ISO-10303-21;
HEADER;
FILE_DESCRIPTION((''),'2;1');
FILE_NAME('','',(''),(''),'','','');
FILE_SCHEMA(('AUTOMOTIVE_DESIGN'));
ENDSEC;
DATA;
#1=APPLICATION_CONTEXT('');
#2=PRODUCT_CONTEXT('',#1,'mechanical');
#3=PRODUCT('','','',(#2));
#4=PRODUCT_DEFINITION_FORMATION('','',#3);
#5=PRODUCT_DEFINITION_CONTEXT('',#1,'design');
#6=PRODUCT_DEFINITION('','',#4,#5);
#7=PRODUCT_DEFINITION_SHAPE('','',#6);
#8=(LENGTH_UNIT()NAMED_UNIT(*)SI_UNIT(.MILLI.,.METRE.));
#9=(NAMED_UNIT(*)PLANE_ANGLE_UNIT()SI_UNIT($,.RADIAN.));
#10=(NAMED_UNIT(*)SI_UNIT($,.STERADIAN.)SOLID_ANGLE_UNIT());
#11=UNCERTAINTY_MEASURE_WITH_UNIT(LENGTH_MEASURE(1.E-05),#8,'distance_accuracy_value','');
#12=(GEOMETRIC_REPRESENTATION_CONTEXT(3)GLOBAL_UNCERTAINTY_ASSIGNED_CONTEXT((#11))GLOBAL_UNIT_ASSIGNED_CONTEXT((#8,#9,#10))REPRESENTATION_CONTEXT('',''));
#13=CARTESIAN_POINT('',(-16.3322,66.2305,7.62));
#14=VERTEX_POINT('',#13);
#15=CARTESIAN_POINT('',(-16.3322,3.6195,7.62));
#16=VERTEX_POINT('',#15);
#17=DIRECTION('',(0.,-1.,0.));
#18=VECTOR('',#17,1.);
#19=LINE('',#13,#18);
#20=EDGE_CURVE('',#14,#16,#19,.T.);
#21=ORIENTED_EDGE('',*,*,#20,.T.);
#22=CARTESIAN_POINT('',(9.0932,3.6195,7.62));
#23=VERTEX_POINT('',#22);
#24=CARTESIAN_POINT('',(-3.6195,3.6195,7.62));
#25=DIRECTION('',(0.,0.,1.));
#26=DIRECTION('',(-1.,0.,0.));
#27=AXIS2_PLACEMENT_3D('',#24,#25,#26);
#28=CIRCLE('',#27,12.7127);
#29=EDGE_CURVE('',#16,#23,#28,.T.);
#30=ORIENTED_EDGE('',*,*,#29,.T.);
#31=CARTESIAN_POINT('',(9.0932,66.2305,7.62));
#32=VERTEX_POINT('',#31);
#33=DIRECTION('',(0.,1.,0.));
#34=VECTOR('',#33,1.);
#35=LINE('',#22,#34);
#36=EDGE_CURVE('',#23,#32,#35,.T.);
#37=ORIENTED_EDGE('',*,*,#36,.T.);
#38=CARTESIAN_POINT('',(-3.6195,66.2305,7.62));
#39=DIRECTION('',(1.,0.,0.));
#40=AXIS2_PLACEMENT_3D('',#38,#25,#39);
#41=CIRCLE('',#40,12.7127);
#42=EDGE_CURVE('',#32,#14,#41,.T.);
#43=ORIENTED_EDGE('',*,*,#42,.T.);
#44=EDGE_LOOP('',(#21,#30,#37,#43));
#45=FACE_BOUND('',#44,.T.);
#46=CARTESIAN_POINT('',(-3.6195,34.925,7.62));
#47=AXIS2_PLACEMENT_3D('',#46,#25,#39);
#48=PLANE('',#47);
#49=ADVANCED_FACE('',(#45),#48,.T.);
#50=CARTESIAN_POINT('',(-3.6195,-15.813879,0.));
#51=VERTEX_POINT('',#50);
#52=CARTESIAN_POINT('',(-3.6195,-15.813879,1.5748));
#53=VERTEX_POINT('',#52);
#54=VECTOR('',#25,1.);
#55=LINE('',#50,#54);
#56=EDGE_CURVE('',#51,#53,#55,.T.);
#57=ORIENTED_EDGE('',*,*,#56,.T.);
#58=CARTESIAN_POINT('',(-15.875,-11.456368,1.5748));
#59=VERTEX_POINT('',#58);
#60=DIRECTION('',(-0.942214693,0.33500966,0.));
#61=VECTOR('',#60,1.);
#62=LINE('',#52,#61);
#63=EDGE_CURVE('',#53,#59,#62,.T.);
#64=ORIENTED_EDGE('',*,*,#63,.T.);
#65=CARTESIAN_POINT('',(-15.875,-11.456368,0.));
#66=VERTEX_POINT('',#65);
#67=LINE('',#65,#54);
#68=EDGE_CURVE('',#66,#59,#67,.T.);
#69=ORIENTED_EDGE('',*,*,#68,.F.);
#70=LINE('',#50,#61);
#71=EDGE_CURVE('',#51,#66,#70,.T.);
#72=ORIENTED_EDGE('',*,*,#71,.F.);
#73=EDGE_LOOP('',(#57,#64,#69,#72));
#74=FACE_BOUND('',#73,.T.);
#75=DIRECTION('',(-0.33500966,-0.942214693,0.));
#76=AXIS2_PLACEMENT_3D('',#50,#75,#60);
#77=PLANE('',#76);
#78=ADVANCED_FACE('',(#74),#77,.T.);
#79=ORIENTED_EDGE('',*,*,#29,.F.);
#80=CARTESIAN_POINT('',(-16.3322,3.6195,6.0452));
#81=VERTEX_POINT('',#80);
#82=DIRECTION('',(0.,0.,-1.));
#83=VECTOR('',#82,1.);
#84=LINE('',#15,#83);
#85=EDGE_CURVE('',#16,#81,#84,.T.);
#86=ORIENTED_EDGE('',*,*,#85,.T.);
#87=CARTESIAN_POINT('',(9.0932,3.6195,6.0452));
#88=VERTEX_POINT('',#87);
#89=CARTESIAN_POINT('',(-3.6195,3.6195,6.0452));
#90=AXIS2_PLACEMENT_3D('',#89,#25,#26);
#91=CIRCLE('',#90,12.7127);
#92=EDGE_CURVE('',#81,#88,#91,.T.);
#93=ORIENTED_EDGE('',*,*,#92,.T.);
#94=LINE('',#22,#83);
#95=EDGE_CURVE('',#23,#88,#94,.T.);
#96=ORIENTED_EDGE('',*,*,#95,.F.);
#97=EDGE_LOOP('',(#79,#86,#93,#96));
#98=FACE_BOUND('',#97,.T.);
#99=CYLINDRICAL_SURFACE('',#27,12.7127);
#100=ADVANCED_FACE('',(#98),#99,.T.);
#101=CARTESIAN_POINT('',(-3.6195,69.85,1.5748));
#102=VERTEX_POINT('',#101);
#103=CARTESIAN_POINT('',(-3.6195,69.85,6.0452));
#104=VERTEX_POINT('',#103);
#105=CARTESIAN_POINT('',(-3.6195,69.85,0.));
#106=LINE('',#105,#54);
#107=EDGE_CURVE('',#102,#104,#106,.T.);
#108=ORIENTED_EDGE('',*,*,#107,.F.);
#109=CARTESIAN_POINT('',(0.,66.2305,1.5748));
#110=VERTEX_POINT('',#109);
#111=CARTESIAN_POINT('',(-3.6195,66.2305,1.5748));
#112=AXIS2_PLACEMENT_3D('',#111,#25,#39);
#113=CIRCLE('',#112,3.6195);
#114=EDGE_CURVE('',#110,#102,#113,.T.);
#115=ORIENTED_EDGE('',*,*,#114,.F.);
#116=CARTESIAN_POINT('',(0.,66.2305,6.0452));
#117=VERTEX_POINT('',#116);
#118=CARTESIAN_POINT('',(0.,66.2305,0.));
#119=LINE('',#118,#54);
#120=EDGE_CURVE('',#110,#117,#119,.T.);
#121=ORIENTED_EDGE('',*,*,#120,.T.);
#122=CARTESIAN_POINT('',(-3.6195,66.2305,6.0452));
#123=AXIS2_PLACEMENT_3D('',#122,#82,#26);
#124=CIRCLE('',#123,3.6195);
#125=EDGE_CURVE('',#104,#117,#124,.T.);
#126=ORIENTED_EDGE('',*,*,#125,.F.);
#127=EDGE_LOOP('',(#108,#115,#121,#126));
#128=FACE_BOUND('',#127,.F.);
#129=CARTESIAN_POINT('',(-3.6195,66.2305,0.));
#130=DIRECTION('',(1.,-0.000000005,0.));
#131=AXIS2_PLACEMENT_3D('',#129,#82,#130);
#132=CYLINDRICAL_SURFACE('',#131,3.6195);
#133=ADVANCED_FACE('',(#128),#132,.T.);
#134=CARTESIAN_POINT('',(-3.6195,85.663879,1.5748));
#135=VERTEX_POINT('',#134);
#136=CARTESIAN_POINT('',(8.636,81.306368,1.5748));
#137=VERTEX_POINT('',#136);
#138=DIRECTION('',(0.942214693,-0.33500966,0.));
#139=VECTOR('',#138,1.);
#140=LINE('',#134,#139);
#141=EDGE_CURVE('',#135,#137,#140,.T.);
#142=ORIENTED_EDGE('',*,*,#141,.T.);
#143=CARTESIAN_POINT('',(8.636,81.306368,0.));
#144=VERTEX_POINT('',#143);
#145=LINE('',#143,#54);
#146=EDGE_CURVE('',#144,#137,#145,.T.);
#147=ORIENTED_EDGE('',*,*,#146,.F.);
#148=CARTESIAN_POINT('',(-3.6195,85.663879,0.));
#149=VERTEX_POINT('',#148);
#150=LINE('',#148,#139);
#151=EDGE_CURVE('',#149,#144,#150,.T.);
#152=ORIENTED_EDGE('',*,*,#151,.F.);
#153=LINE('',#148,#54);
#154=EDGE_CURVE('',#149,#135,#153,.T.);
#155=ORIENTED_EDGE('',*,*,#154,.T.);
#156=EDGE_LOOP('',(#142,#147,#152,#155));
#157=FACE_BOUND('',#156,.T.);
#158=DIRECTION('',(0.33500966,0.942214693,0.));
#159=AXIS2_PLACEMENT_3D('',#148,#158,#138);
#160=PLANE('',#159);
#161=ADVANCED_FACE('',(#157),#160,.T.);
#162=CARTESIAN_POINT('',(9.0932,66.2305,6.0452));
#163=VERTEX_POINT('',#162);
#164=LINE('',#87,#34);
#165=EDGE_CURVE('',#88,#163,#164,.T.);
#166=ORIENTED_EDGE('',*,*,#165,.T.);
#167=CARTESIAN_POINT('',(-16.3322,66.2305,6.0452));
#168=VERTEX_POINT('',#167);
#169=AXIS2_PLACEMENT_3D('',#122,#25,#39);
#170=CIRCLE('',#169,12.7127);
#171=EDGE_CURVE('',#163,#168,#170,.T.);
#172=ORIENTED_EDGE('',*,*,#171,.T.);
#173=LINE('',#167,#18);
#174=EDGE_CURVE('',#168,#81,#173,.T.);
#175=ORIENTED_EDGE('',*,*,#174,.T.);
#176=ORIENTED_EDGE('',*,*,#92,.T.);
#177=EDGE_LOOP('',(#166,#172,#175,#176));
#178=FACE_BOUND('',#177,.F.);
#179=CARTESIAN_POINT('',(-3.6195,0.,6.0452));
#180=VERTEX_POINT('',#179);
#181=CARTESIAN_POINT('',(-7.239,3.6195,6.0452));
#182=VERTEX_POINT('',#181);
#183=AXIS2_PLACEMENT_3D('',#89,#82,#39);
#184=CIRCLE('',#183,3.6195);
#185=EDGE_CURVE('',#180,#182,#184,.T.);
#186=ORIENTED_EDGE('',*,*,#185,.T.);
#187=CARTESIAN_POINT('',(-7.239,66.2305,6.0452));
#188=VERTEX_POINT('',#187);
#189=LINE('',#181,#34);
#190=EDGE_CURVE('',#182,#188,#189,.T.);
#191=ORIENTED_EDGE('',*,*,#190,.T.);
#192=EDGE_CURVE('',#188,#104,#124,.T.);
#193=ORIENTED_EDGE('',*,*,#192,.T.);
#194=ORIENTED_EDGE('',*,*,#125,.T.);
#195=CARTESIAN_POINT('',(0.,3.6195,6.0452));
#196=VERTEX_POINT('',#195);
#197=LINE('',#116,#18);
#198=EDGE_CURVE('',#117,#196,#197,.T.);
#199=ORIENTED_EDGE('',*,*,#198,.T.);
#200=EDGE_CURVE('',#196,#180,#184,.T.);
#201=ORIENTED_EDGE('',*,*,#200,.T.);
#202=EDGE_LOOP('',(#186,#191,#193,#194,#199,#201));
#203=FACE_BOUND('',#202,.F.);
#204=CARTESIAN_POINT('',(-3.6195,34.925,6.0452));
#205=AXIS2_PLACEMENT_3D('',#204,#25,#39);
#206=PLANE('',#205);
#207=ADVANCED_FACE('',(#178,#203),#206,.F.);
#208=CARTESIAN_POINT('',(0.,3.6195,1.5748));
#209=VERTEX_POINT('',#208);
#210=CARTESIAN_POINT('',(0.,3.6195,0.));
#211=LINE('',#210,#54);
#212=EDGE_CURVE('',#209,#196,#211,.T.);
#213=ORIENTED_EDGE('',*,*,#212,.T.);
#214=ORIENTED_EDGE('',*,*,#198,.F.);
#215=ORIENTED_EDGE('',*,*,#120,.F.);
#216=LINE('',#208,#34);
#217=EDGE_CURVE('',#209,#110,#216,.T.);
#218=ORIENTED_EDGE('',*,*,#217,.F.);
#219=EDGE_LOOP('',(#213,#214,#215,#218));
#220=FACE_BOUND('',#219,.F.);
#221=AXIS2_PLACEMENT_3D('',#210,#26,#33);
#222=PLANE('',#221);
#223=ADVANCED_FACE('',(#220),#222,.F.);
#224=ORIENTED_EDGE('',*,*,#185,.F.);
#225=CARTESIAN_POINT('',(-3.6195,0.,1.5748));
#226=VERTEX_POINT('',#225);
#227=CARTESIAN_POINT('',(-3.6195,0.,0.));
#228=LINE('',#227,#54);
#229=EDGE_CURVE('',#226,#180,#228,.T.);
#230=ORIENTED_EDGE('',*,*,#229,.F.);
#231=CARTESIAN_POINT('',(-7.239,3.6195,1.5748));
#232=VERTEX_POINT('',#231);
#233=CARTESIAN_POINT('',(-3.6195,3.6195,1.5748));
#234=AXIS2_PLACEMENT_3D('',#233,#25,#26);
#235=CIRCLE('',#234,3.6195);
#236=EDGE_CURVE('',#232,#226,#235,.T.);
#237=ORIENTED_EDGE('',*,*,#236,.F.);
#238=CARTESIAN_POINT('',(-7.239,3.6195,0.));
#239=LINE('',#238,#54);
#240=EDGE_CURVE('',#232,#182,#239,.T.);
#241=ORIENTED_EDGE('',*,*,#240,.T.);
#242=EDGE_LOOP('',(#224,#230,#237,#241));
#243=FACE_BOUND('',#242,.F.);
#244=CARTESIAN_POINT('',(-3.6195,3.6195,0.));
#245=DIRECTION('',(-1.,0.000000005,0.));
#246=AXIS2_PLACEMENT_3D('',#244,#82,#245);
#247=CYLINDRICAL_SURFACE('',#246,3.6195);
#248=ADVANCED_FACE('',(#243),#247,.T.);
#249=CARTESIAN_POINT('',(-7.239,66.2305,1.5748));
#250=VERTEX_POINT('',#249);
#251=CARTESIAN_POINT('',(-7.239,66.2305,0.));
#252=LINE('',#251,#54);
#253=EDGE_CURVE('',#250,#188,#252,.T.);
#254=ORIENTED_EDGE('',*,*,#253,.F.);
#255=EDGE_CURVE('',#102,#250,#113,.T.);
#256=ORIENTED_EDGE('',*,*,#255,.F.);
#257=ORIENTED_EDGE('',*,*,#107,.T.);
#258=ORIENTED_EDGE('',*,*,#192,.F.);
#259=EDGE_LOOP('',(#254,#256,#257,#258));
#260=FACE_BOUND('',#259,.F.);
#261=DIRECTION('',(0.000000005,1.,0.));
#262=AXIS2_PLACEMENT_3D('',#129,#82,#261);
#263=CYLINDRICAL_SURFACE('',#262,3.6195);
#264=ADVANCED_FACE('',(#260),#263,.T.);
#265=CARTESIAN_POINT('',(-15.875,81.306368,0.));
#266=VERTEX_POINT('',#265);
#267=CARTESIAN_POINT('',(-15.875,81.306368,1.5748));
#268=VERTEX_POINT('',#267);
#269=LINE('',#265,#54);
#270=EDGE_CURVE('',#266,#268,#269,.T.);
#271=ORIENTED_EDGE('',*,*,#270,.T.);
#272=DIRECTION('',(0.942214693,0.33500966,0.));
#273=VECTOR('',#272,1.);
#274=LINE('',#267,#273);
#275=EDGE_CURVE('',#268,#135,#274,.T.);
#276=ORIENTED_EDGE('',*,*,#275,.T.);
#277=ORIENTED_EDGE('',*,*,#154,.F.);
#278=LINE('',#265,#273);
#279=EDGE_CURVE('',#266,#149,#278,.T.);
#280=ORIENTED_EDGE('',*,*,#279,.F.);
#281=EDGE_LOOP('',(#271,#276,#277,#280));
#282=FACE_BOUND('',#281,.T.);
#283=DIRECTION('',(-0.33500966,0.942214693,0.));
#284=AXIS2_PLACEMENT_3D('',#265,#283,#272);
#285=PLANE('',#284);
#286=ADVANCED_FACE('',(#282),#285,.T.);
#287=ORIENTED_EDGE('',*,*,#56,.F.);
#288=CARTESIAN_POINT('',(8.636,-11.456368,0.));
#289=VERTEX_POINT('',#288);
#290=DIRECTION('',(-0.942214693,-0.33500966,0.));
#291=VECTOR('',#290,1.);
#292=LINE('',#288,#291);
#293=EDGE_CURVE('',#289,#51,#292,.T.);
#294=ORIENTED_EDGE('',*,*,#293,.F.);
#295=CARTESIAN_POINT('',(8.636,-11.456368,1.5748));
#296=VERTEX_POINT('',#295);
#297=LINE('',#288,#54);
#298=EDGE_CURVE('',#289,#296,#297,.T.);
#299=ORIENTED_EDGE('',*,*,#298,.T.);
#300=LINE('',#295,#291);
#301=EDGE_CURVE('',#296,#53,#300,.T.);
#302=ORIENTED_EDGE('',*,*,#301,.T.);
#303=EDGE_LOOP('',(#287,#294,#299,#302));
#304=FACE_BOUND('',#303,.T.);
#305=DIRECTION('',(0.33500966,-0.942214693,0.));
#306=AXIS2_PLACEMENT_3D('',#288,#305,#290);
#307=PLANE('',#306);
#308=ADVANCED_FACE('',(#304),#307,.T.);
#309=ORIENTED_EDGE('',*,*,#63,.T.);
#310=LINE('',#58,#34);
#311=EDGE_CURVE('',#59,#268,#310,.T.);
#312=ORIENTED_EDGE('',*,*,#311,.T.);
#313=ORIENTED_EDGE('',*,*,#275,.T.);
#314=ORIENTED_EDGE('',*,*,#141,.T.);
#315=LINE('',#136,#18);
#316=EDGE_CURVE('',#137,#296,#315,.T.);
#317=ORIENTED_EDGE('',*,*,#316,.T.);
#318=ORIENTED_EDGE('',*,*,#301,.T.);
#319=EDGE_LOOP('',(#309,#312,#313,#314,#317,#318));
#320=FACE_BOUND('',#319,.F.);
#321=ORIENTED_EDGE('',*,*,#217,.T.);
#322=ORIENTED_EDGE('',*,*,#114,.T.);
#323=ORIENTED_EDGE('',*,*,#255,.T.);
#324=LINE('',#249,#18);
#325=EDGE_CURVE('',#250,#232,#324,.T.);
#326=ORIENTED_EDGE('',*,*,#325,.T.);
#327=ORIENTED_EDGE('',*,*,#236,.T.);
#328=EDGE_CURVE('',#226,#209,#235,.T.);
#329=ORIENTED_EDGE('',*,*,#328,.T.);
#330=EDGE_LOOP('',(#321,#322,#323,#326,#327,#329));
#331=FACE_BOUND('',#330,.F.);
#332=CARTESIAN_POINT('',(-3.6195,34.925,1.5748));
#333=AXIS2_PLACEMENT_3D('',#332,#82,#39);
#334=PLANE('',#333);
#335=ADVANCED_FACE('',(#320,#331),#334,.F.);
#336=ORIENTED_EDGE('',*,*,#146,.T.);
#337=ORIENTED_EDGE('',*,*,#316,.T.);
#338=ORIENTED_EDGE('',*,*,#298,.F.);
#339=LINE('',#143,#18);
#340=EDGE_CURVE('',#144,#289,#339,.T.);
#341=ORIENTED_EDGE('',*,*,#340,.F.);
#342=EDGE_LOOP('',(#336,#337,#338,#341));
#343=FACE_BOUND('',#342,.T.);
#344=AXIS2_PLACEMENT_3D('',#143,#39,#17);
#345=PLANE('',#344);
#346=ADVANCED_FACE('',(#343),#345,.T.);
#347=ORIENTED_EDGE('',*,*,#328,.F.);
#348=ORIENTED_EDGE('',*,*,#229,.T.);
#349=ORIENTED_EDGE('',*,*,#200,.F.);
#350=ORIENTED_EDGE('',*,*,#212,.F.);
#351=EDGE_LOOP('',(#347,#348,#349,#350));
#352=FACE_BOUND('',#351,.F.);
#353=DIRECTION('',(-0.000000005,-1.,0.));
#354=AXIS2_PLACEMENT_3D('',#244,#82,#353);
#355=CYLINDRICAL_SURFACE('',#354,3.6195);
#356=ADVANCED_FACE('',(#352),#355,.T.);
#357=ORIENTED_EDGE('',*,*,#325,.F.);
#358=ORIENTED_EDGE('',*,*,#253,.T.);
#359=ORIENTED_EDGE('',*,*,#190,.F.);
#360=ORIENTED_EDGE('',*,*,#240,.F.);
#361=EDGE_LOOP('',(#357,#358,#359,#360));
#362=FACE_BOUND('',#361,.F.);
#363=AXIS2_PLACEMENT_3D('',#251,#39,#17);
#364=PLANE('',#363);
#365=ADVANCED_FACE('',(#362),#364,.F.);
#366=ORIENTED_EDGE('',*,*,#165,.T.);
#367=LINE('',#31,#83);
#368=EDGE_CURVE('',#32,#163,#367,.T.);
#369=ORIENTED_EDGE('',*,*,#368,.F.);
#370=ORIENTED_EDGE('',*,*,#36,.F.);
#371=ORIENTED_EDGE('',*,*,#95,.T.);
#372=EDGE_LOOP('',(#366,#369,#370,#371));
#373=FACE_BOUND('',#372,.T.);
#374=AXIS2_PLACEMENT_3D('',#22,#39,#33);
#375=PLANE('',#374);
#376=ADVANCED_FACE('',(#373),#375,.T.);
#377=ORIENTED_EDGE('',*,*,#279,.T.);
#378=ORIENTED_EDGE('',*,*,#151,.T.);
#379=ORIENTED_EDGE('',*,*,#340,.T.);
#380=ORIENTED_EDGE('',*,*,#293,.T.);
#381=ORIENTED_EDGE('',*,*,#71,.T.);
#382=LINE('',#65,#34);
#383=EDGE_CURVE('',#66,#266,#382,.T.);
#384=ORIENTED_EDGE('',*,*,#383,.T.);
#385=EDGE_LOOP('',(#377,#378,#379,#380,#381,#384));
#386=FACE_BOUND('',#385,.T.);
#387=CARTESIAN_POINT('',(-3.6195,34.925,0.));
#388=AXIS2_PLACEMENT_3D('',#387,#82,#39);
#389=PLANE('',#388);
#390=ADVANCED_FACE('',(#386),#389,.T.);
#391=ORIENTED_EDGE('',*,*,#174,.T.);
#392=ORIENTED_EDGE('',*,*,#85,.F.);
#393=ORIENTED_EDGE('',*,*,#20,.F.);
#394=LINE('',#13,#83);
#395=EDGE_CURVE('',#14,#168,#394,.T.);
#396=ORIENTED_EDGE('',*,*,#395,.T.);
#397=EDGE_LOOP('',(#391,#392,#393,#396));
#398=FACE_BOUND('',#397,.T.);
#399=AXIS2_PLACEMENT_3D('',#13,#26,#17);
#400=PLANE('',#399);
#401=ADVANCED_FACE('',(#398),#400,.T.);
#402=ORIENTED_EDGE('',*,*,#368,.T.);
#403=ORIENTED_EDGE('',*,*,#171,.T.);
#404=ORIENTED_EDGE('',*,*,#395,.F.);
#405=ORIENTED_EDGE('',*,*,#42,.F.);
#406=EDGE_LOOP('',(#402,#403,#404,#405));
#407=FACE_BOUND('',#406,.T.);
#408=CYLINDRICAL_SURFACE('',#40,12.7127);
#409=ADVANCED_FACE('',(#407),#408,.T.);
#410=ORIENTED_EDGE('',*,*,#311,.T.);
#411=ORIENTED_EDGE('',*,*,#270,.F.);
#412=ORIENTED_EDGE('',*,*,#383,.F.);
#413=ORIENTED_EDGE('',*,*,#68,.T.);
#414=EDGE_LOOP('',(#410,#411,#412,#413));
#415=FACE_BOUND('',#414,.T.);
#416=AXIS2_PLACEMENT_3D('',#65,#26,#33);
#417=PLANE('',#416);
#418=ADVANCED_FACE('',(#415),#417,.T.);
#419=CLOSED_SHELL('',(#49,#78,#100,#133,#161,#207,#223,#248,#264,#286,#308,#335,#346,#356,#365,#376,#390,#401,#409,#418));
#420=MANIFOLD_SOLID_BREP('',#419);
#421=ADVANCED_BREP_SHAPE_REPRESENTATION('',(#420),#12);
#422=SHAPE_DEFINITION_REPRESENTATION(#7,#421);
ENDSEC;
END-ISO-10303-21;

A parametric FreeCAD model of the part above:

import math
import FreeCAD as App
import Part
import Sketcher

V = App.Vector
Q = App.Units.Quantity


def add_polygon(sketch, points):
    """Adds a closed chain of lines whose ends are joined by coincident constraints."""
    first, n = sketch.GeometryCount, len(points)
    for a, b in zip(points, points[1:] + points[:1]):
        sketch.addGeometry(Part.LineSegment(App.Vector(*a, 0), App.Vector(*b, 0)), False)
    for i in range(n):
        sketch.addConstraint(Sketcher.Constraint("Coincident", first + i, 2, first + (i + 1) % n, 1))

doc = App.newDocument("Part")
body = doc.addObject("PartDesign::Body", "Body")

sketch1 = doc.addObject("Sketcher::SketchObject", "Sketch")
body.addObject(sketch1)
sketch1.AttachmentSupport = (doc.XY_Plane, [""])
sketch1.MapMode = "FlatFace"
sketch1.addGeometry([
    Part.ArcOfCircle(Part.Circle(V(-3.6195, 3.6195, 0), V(0, 0, 1), 3.6195), math.radians(-90), math.radians(0)),
    Part.LineSegment(V(0, 3.6195, 0), V(0, 66.2305, 0)),
    Part.ArcOfCircle(Part.Circle(V(-3.6195, 66.2305, 0), V(0, 0, 1), 3.6195), math.radians(0), math.radians(90)),
    Part.ArcOfCircle(Part.Circle(V(-3.6195, 66.2305, 0), V(0, 0, 1), 3.6195), math.radians(90), math.radians(180)),
    Part.LineSegment(V(-7.239, 66.2305, 0), V(-7.239, 3.6195, 0)),
    Part.ArcOfCircle(Part.Circle(V(-3.6195, 3.6195, 0), V(0, 0, 1), 3.6195), math.radians(180), math.radians(270)),
], False)
sketch1.addConstraint([
    Sketcher.Constraint("Tangent", 0, 2, 1, 1),
    Sketcher.Constraint("Tangent", 1, 2, 2, 1),
    Sketcher.Constraint("Tangent", 2, 2, 3, 1),
    Sketcher.Constraint("Tangent", 3, 2, 4, 1),
    Sketcher.Constraint("Tangent", 4, 2, 5, 1),
    Sketcher.Constraint("Tangent", 5, 2, 0, 1),
    Sketcher.Constraint("Vertical", 1),
    Sketcher.Constraint("Vertical", 4),
    Sketcher.Constraint("Equal", 0, 2),
    Sketcher.Constraint("Equal", 2, 3),
    Sketcher.Constraint("PointOnObject", 0, 2, -2),
    Sketcher.Constraint("PointOnObject", 5, 2, -1),
    Sketcher.Constraint("Vertical", 5, 3, 2, 2),
    Sketcher.Constraint("Vertical", 2, 2, 5, 2),
    Sketcher.Constraint("Radius", 0, Q("0.1425 in")),
    Sketcher.Constraint("DistanceY", 1, 1, 1, 2, Q("2.465 in")),
])
pad1 = doc.addObject("PartDesign::Pad", "Pad")
body.addObject(pad1)
pad1.Profile = sketch1
pad1.Length = Q("0.3 in")

sketch2 = doc.addObject("Sketcher::SketchObject", "Sketch001")
body.addObject(sketch2)
sketch2.AttachmentSupport = (doc.XY_Plane, [""])
sketch2.MapMode = "FlatFace"
add_polygon(sketch2, [(8.636, -11.456368), (-3.6195, -15.813879), (-15.875, -11.456368), (-15.875, 81.306368), (-3.6195, 85.663879), (8.636, 81.306368)])
sketch2.addGeometry(Part.LineSegment(V(-7.239, 66.2305, 0), V(-7.239, 3.6195, 0)), False)
sketch2.addGeometry(Part.ArcOfCircle(Part.Circle(V(-3.6195, 3.6195, 0), V(0, 0, 1), 3.6195), math.radians(180), math.radians(360)), False)
sketch2.addGeometry(Part.LineSegment(V(0, 3.6195, 0), V(0, 66.2305, 0)), False)
sketch2.addGeometry(Part.ArcOfCircle(Part.Circle(V(-3.6195, 66.2305, 0), V(0, 0, 1), 3.6195), math.radians(0), math.radians(180)), False)
sketch2.addConstraint([
    Sketcher.Constraint("Tangent", 6, 2, 7, 1),
    Sketcher.Constraint("Tangent", 7, 2, 8, 1),
    Sketcher.Constraint("Tangent", 8, 2, 9, 1),
    Sketcher.Constraint("Tangent", 9, 2, 6, 1),
    Sketcher.Constraint("Vertical", 2),
    Sketcher.Constraint("Vertical", 5),
    Sketcher.Constraint("Vertical", 6),
    Sketcher.Constraint("Vertical", 8),
    Sketcher.Constraint("PointOnObject", 7, 2, -2),
    Sketcher.Constraint("Parallel", 0, 3),
    Sketcher.Constraint("Parallel", 1, 4),
    Sketcher.Constraint("Horizontal", 2, 2, 4, 2),
    Sketcher.Constraint("Horizontal", 1, 2, 5, 2),
    Sketcher.Constraint("Vertical", 9, 3, 0, 2),
    Sketcher.Constraint("Vertical", 0, 2, 3, 2),
    Sketcher.Constraint("Radius", 7, Q("0.1425 in")),
    Sketcher.Constraint("DistanceY", 6, 2, 6, 1, Q("2.465 in")),
    Sketcher.Constraint("DistanceX", -1, 1, 4, 2, Q("0.34 in")),
    Sketcher.Constraint("DistanceY", -1, 1, 7, 3, Q("0.1425 in")),
    Sketcher.Constraint("Distance", 0, 13.00712),
    Sketcher.Constraint("DistanceY", 2, 1, 2, 2, 92.762736),
    Sketcher.Constraint("DistanceY", 0, 2, -1, 1, 15.813879),
])
pad2 = doc.addObject("PartDesign::Pad", "Pad001")
body.addObject(pad2)
pad2.Profile = sketch2
pad2.Length = Q("0.062 in")

sketch3 = doc.addObject("Sketcher::SketchObject", "Sketch002")
body.addObject(sketch3)
sketch3.AttachmentSupport = (doc.XY_Plane, [""])
sketch3.MapMode = "FlatFace"
sketch3.AttachmentOffset = App.Placement(V(0, 0, 0.3 * 25.4), App.Rotation())
sketch3.addGeometry([
    Part.ArcOfCircle(Part.Circle(V(-3.6195, 66.2305, 0), V(0, 0, 1), 12.7127), math.radians(0), math.radians(180)),
    Part.LineSegment(V(-16.3322, 66.2305, 0), V(-16.3322, 3.6195, 0)),
    Part.ArcOfCircle(Part.Circle(V(-3.6195, 3.6195, 0), V(0, 0, 1), 12.7127), math.radians(180), math.radians(360)),
    Part.LineSegment(V(9.0932, 3.6195, 0), V(9.0932, 66.2305, 0)),
    Part.LineSegment(V(0, 66.2305, 0), V(0, 3.6195, 0)),
    Part.ArcOfCircle(Part.Circle(V(-3.6195, 3.6195, 0), V(0, 0, 1), 3.6195), math.radians(180), math.radians(360)),
    Part.LineSegment(V(-7.239, 3.6195, 0), V(-7.239, 66.2305, 0)),
    Part.ArcOfCircle(Part.Circle(V(-3.6195, 66.2305, 0), V(0, 0, 1), 3.6195), math.radians(0), math.radians(180)),
], False)
sketch3.addConstraint([
    Sketcher.Constraint("Tangent", 0, 2, 1, 1),
    Sketcher.Constraint("Tangent", 1, 2, 2, 1),
    Sketcher.Constraint("Tangent", 2, 2, 3, 1),
    Sketcher.Constraint("Tangent", 3, 2, 0, 1),
    Sketcher.Constraint("Tangent", 4, 2, 5, 2),
    Sketcher.Constraint("Tangent", 5, 1, 6, 1),
    Sketcher.Constraint("Tangent", 6, 2, 7, 2),
    Sketcher.Constraint("Tangent", 7, 1, 4, 1),
    Sketcher.Constraint("Vertical", 1),
    Sketcher.Constraint("Vertical", 3),
    Sketcher.Constraint("Vertical", 4),
    Sketcher.Constraint("Vertical", 6),
    Sketcher.Constraint("Coincident", 5, 3, 2, 3),
    Sketcher.Constraint("PointOnObject", 4, 2, -2),
    Sketcher.Constraint("Horizontal", 7, 3, 0, 2),
    Sketcher.Constraint("Radius", 0, Q("0.5005 in")),
    Sketcher.Constraint("Radius", 5, Q("0.1425 in")),
    Sketcher.Constraint("DistanceY", 1, 2, 1, 1, Q("2.465 in")),
    Sketcher.Constraint("DistanceY", -1, 1, 0, 3, Q("2.6075 in")),
])
pad3 = doc.addObject("PartDesign::Pad", "Pad002")
body.addObject(pad3)
pad3.Profile = sketch3
pad3.Length = Q("0.062 in")
pad3.Reversed = True

doc.recompute()
